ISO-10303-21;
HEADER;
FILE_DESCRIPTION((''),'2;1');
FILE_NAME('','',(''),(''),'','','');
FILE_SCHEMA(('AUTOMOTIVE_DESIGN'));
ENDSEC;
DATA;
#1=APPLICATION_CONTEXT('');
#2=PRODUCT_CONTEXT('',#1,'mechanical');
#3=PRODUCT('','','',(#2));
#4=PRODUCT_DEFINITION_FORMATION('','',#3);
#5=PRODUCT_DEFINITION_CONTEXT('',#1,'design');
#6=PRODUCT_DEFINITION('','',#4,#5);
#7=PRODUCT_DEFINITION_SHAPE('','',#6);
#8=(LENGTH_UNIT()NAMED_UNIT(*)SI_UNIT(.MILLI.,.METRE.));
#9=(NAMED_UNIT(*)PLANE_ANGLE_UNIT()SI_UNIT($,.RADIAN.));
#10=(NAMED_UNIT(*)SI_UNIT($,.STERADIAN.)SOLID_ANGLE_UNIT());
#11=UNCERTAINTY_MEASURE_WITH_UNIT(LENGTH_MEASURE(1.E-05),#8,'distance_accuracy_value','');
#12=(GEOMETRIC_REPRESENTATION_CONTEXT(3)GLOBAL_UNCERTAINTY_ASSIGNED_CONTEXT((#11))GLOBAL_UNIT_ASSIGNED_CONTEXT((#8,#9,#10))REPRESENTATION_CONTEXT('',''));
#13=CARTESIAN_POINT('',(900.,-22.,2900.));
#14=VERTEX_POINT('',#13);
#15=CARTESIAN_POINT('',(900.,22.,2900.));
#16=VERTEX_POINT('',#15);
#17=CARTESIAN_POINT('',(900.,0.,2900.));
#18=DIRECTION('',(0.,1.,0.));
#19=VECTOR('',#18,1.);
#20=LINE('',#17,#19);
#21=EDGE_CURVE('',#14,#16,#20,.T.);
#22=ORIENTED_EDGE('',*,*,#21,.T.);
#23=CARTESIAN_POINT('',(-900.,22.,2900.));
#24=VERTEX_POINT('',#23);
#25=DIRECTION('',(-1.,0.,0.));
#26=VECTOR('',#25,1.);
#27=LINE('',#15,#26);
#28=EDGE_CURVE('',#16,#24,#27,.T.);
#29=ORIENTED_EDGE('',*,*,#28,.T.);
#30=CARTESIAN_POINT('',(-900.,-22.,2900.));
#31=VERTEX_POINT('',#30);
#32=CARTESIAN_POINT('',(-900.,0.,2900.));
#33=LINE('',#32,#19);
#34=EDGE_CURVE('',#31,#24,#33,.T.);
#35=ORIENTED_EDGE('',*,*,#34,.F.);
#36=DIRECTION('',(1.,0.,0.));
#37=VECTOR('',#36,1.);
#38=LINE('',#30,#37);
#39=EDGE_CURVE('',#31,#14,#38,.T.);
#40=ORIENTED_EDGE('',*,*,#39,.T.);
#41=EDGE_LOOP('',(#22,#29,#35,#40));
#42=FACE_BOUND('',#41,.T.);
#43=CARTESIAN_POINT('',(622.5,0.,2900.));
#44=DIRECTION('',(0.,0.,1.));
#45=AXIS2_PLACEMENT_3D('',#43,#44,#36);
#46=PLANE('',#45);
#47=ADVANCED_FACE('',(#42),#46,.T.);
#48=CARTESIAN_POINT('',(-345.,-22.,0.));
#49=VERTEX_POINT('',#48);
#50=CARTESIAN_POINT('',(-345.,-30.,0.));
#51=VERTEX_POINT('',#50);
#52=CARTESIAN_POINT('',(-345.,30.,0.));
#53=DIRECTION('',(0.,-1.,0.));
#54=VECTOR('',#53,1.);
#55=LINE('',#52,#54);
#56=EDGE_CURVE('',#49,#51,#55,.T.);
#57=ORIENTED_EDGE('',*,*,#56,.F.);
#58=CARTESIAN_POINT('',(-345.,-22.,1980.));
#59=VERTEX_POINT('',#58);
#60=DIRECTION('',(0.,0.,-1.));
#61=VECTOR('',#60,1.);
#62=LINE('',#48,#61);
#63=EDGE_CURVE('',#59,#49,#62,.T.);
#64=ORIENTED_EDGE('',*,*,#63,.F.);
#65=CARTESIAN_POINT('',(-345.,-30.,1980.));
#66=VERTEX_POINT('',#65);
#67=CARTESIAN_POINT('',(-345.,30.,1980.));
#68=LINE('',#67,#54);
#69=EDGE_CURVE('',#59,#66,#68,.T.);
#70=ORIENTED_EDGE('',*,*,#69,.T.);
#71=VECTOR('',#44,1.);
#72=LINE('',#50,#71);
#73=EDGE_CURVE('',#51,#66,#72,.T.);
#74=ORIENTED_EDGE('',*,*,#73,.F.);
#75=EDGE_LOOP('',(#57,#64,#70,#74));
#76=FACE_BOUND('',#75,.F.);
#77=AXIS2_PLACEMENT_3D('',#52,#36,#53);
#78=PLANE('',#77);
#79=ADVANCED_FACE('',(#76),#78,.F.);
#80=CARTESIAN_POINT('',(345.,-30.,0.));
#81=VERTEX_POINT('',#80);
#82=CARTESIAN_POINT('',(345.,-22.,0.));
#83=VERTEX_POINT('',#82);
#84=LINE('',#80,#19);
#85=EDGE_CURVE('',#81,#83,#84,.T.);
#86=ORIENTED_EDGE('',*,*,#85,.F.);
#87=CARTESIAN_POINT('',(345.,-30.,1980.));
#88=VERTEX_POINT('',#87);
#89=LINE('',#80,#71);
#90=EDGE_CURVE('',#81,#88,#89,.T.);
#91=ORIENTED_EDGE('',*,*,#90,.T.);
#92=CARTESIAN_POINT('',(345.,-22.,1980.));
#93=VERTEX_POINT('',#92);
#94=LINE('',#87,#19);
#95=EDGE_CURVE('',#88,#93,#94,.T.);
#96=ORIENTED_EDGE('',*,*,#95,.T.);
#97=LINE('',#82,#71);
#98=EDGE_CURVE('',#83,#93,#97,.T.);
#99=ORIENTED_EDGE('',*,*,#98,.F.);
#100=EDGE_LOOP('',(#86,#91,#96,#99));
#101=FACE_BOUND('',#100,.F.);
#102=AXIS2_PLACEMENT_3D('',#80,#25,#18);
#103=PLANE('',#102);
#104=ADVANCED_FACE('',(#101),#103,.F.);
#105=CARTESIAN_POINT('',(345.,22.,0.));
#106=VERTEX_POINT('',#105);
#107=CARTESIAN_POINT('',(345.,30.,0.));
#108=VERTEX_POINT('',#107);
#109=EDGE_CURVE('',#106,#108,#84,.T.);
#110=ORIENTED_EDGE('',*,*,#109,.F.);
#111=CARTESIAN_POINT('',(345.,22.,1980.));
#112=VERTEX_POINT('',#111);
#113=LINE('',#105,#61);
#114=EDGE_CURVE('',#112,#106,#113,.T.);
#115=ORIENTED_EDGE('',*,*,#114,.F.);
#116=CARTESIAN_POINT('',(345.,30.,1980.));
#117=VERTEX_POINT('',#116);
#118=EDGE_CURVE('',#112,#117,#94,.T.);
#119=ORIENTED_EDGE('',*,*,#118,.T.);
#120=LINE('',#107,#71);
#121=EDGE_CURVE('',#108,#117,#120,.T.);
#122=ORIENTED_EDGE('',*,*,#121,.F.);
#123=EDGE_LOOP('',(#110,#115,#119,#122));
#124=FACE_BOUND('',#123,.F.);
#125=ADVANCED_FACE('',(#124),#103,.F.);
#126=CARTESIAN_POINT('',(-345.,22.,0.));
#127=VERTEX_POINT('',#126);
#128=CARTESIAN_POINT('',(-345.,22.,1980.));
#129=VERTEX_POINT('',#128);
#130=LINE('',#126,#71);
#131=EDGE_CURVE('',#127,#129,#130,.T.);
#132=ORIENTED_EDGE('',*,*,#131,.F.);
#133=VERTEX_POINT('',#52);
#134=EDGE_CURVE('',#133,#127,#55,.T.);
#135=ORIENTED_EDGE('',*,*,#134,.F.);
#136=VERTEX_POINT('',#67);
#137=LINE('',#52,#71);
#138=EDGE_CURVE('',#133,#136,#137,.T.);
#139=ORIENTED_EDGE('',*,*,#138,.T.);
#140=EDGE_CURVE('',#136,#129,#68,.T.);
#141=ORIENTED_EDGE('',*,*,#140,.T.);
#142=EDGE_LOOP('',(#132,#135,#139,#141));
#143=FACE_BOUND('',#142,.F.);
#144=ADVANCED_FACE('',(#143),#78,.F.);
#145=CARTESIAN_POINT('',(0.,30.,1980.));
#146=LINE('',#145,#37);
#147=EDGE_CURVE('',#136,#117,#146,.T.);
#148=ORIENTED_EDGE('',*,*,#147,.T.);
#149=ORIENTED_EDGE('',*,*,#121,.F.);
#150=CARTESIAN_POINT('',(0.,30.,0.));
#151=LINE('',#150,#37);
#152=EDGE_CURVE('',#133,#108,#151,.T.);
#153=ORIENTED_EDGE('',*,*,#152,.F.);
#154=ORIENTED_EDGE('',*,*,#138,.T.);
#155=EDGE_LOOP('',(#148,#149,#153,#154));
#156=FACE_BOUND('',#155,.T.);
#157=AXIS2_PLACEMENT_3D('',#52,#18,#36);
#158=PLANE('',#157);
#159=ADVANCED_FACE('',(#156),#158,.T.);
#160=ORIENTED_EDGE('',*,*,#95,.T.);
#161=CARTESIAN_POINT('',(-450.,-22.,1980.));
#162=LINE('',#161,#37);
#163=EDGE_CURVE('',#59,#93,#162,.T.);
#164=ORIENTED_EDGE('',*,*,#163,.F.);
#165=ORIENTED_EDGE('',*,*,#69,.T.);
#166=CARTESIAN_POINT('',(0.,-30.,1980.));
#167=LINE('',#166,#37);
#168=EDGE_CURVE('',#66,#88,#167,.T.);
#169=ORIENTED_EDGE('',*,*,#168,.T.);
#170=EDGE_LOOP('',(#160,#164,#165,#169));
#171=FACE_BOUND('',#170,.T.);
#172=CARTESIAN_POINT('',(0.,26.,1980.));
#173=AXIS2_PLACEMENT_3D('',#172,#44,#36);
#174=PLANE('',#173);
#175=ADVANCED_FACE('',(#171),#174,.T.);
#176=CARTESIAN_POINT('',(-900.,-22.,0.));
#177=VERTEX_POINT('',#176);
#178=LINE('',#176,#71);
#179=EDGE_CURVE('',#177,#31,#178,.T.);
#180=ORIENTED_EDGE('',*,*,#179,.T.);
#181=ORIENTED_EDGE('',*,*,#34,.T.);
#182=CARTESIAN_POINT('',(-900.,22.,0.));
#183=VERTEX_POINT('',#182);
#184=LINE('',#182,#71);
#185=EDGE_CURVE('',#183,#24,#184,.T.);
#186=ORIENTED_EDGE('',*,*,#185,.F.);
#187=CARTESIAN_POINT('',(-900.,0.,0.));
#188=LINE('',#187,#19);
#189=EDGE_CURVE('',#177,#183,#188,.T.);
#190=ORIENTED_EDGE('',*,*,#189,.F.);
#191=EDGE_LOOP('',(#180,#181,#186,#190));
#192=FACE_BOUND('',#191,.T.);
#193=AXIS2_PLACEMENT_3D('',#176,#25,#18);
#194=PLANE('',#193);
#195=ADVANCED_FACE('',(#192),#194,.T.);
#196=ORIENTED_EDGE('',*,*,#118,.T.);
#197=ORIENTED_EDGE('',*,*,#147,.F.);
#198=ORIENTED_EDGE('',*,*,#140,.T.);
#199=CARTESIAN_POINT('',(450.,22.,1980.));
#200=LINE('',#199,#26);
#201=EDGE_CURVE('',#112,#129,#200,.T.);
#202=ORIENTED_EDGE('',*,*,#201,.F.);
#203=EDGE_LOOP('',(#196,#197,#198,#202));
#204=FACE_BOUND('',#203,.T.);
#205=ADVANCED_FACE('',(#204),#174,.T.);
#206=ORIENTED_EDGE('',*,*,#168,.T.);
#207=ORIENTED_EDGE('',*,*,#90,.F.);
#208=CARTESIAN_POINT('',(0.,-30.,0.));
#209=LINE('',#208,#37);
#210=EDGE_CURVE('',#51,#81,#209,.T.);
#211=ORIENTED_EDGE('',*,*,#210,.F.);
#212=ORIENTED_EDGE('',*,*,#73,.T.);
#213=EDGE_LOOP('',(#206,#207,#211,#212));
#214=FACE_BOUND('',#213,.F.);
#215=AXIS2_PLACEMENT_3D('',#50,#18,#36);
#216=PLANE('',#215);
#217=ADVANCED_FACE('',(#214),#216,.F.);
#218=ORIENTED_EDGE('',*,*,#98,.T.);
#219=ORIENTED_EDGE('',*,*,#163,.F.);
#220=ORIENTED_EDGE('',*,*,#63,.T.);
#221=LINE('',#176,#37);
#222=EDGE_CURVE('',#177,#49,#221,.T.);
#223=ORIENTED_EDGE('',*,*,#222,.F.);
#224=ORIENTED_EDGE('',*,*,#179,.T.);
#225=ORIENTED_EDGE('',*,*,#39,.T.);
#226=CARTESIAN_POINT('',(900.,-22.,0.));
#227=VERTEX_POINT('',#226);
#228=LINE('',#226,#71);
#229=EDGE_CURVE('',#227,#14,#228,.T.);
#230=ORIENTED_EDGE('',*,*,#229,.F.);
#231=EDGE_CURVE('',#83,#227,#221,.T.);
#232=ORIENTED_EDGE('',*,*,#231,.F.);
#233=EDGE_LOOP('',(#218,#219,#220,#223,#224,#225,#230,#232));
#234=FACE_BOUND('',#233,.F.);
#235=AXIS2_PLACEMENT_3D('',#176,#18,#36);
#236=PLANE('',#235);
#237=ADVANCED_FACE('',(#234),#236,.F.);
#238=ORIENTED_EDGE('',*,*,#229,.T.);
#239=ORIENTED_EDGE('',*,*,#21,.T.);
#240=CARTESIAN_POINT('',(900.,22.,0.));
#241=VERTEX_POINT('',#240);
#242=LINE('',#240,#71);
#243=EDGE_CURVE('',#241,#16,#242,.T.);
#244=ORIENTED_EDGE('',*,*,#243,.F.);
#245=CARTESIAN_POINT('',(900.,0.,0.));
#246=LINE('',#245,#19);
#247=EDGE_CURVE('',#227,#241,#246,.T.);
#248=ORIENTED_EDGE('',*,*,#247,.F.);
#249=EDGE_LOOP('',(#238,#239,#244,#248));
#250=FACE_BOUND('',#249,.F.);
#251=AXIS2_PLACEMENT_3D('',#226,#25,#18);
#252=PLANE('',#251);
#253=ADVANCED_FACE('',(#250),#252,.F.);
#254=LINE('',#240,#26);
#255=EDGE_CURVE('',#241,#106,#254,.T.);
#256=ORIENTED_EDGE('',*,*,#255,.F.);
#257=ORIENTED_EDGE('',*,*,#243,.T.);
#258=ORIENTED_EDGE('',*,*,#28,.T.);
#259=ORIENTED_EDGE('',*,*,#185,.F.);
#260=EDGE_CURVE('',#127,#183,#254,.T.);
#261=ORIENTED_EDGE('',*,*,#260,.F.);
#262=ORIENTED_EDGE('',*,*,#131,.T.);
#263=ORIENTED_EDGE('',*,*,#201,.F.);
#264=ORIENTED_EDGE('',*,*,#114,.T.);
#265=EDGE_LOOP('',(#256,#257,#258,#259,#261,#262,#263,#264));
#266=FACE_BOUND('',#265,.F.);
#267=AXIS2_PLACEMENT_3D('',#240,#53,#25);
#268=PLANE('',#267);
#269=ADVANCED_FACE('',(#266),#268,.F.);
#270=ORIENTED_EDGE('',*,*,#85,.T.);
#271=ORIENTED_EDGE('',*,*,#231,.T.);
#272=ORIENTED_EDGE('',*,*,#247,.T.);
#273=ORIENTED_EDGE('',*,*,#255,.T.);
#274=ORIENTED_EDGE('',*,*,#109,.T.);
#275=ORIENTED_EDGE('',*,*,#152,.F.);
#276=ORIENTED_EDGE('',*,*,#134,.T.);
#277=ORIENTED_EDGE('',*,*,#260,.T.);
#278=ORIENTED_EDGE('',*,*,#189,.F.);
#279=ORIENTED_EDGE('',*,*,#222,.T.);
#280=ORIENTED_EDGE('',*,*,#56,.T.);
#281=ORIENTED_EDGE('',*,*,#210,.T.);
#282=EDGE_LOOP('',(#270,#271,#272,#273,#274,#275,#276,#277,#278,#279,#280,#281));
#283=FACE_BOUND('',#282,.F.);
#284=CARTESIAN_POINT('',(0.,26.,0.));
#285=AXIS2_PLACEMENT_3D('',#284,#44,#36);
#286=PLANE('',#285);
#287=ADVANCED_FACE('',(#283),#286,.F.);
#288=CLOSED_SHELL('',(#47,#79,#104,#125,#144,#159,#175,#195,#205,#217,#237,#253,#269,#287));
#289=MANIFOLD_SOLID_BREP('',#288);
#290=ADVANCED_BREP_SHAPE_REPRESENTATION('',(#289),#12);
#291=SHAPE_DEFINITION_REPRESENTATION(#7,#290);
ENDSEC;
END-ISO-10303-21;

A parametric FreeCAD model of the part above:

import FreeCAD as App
import Part
import Sketcher

V = App.Vector
Q = App.Units.Quantity

doc = App.newDocument("Part")
body = doc.addObject("PartDesign::Body", "Body")

sketch1 = body.newObject("Sketcher::SketchObject", "Sketch")
sketch1.AttachmentSupport = (doc.getObject("XY_Plane"), [""])
sketch1.MapMode = "FlatFace"
sketch1.addGeometry(Part.LineSegment(V(900, -22, 0), V(900, 22, 0)), False)
sketch1.addGeometry(Part.LineSegment(V(900, 22, 0), V(-900, 22, 0)), False)
sketch1.addGeometry(Part.LineSegment(V(-900, 22, 0), V(-900, -22, 0)), False)
sketch1.addGeometry(Part.LineSegment(V(-900, -22, 0), V(900, -22, 0)), False)
sketch1.addConstraint(Sketcher.Constraint("Coincident", 0, 2, 1, 1))
sketch1.addConstraint(Sketcher.Constraint("Coincident", 1, 2, 2, 1))
sketch1.addConstraint(Sketcher.Constraint("Coincident", 2, 2, 3, 1))
sketch1.addConstraint(Sketcher.Constraint("Coincident", 3, 2, 0, 1))
sketch1.addConstraint(Sketcher.Constraint("Vertical", 0))
sketch1.addConstraint(Sketcher.Constraint("Horizontal", 1))
sketch1.addConstraint(Sketcher.Constraint("Vertical", 2))
sketch1.addConstraint(Sketcher.Constraint("Horizontal", 3))
sketch1.addConstraint(Sketcher.Constraint("Symmetric", 0, 2, 2, 2, -1, 1))
sketch1.addConstraint(Sketcher.Constraint("DistanceX", 1, 2, 1, 1, Q("1800 mm")))
sketch1.addConstraint(Sketcher.Constraint("DistanceY", 0, 1, 0, 2, Q("44 mm")))
pad1 = body.newObject("PartDesign::Pad", "Pad")
pad1.Profile = sketch1
pad1.Length = 2900

sketch2 = body.newObject("Sketcher::SketchObject", "Sketch001")
sketch2.AttachmentSupport = (doc.getObject("XY_Plane"), [""])
sketch2.MapMode = "FlatFace"
sketch2.addGeometry(Part.LineSegment(V(-345, 30, 0), V(-345, -30, 0)), False)
sketch2.addGeometry(Part.LineSegment(V(-345, -30, 0), V(345, -30, 0)), False)
sketch2.addGeometry(Part.LineSegment(V(345, -30, 0), V(345, 30, 0)), False)
sketch2.addGeometry(Part.LineSegment(V(345, 30, 0), V(-345, 30, 0)), False)
sketch2.addConstraint(Sketcher.Constraint("Coincident", 0, 2, 1, 1))
sketch2.addConstraint(Sketcher.Constraint("Coincident", 1, 2, 2, 1))
sketch2.addConstraint(Sketcher.Constraint("Coincident", 2, 2, 3, 1))
sketch2.addConstraint(Sketcher.Constraint("Coincident", 3, 2, 0, 1))
sketch2.addConstraint(Sketcher.Constraint("Vertical", 0))
sketch2.addConstraint(Sketcher.Constraint("Horizontal", 1))
sketch2.addConstraint(Sketcher.Constraint("Vertical", 2))
sketch2.addConstraint(Sketcher.Constraint("Horizontal", 3))
sketch2.addConstraint(Sketcher.Constraint("Symmetric", 0, 2, 2, 2, -1, 1))
sketch2.addConstraint(Sketcher.Constraint("DistanceX", 1, 1, 1, 2, Q("690 mm")))
sketch2.addConstraint(Sketcher.Constraint("DistanceY", 0, 2, 0, 1, Q("60 mm")))
pad2 = body.newObject("PartDesign::Pad", "Pad001")
pad2.Profile = sketch2
pad2.Length = 1980

doc.recompute()
